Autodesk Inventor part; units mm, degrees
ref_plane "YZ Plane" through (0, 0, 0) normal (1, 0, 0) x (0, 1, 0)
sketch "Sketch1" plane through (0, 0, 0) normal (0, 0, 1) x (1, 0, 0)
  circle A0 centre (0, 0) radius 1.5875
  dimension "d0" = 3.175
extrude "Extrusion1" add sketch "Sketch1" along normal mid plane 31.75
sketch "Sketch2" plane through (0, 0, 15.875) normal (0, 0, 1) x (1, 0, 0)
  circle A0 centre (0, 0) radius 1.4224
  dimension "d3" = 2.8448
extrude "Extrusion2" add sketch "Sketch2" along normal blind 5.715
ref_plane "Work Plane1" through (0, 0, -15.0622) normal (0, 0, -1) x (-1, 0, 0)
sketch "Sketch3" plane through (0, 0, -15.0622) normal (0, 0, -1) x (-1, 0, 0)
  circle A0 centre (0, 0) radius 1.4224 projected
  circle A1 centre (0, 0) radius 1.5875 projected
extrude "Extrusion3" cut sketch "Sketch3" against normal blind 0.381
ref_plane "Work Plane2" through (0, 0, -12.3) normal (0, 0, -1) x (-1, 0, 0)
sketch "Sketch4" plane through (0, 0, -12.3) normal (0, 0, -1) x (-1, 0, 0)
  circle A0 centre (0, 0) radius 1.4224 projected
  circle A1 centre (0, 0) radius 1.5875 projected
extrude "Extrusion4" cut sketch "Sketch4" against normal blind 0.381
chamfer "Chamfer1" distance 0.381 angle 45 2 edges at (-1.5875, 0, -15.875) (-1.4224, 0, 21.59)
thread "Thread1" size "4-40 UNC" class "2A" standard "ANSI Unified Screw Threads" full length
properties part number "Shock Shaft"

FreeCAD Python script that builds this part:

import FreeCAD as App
import Part
import Sketcher

V = App.Vector
Q = App.Units.Quantity


def edges_at(feature, points):
    """Names of the edges that pass closest to the given points."""
    edges = feature.Shape.Edges
    near = lambda p: min(range(len(edges)), key=lambda i: edges[i].distToShape(Part.Vertex(*p))[0])
    return sorted({f"Edge{near(p) + 1}" for p in points})

doc = App.newDocument("Part")
params = doc.addObject("Spreadsheet::Sheet", "Params")
for row, (alias, value) in enumerate([
    ("sketch1_diameter", "0.125 in"),
    ("pad1_length", "1.25 in"),
    ("sketch2_diameter", "0.112 in"),
    ("pad2_length", "0.225 in"),
    ("sketch3_diameter", "0.125 in"),
    ("sketch3_diameter2", "0.112 in"),
    ("pocket1_length", "0.015 in"),
    ("sketch4_diameter", "0.125 in"),
    ("sketch4_diameter2", "0.112 in"),
    ("pocket2_length", "0.015 in"),
    ("chamfer_size", "0.015 in"),
], start=1):
    params.set(f"A{row}", alias)
    params.set(f"B{row}", "=" + value)
    params.setAlias(f"B{row}", alias)

body = doc.addObject("PartDesign::Body", "Body")

sketch1 = doc.addObject("Sketcher::SketchObject", "Sketch")
body.addObject(sketch1)
sketch1.AttachmentSupport = (doc.XY_Plane, [""])
sketch1.MapMode = "FlatFace"
sketch1.addGeometry(Part.Circle(V(0, 0, 0), V(0, 0, 1), 1.6), False)
sketch1.addConstraint([
    Sketcher.Constraint("Coincident", 0, 3, -1, 1),
    Sketcher.Constraint("Diameter", 0, Q("0.125 in")),
])
sketch1.setExpression("Constraints[1]", "Params.sketch1_diameter")
pad1 = doc.addObject("PartDesign::Pad", "Pad")
body.addObject(pad1)
pad1.Profile = sketch1
pad1.setExpression("Length", "Params.pad1_length")
pad1.Midplane = True

sketch2 = doc.addObject("Sketcher::SketchObject", "Sketch001")
body.addObject(sketch2)
sketch2.AttachmentSupport = (doc.XY_Plane, [""])
sketch2.MapMode = "FlatFace"
sketch2.AttachmentOffset = App.Placement(V(0, 0, 0.625 * 25.4), App.Rotation())
sketch2.addGeometry(Part.Circle(V(0, 0, 0), V(0, 0, 1), 1.4), False)
sketch2.addConstraint([
    Sketcher.Constraint("Coincident", 0, 3, -1, 1),
    Sketcher.Constraint("Diameter", 0, Q("0.112 in")),
])
sketch2.setExpression("Constraints[1]", "Params.sketch2_diameter")
pad2 = doc.addObject("PartDesign::Pad", "Pad001")
body.addObject(pad2)
pad2.Profile = sketch2
pad2.setExpression("Length", "Params.pad2_length")

sketch3 = doc.addObject("Sketcher::SketchObject", "Sketch002")
body.addObject(sketch3)
sketch3.AttachmentSupport = (doc.XY_Plane, [""])
sketch3.MapMode = "FlatFace"
sketch3.AttachmentOffset = App.Placement(V(0, 0, -0.593 * 25.4), App.Rotation())
sketch3.addGeometry([
    Part.Circle(V(0, 0, 0), V(0, 0, 1), 1.6),
    Part.Circle(V(0, 0, 0), V(0, 0, 1), 1.4),
], False)
sketch3.addConstraint([
    Sketcher.Constraint("Coincident", 0, 3, -1, 1),
    Sketcher.Constraint("Coincident", 1, 3, -1, 1),
    Sketcher.Constraint("Diameter", 0, Q("0.125 in")),
    Sketcher.Constraint("Diameter", 1, Q("0.112 in")),
])
sketch3.setExpression("Constraints[2]", "Params.sketch3_diameter")
sketch3.setExpression("Constraints[3]", "Params.sketch3_diameter2")
pocket1 = doc.addObject("PartDesign::Pocket", "Pocket")
body.addObject(pocket1)
pocket1.Profile = sketch3
pocket1.setExpression("Length", "Params.pocket1_length")
pocket1.Reversed = True

sketch4 = doc.addObject("Sketcher::SketchObject", "Sketch003")
body.addObject(sketch4)
sketch4.AttachmentSupport = (doc.XY_Plane, [""])
sketch4.MapMode = "FlatFace"
sketch4.AttachmentOffset = App.Placement(V(0, 0, -12.3), App.Rotation())
sketch4.addGeometry([
    Part.Circle(V(0, 0, 0), V(0, 0, 1), 1.6),
    Part.Circle(V(0, 0, 0), V(0, 0, 1), 1.4),
], False)
sketch4.addConstraint([
    Sketcher.Constraint("Coincident", 0, 3, -1, 1),
    Sketcher.Constraint("Coincident", 1, 3, -1, 1),
    Sketcher.Constraint("Diameter", 0, Q("0.125 in")),
    Sketcher.Constraint("Diameter", 1, Q("0.112 in")),
])
sketch4.setExpression("Constraints[2]", "Params.sketch4_diameter")
sketch4.setExpression("Constraints[3]", "Params.sketch4_diameter2")
pocket2 = doc.addObject("PartDesign::Pocket", "Pocket001")
body.addObject(pocket2)
pocket2.Profile = sketch4
pocket2.setExpression("Length", "Params.pocket2_length")
pocket2.Reversed = True
doc.recompute()

chamfer = doc.addObject("PartDesign::Chamfer", "Chamfer")
body.addObject(chamfer)
chamfer.Base = (pocket2, edges_at(pocket2, [(-1.587, 0, -15.875), (-1.422, 0, 21.59)]))
chamfer.setExpression("Size", "Params.chamfer_size")

doc.recompute()
